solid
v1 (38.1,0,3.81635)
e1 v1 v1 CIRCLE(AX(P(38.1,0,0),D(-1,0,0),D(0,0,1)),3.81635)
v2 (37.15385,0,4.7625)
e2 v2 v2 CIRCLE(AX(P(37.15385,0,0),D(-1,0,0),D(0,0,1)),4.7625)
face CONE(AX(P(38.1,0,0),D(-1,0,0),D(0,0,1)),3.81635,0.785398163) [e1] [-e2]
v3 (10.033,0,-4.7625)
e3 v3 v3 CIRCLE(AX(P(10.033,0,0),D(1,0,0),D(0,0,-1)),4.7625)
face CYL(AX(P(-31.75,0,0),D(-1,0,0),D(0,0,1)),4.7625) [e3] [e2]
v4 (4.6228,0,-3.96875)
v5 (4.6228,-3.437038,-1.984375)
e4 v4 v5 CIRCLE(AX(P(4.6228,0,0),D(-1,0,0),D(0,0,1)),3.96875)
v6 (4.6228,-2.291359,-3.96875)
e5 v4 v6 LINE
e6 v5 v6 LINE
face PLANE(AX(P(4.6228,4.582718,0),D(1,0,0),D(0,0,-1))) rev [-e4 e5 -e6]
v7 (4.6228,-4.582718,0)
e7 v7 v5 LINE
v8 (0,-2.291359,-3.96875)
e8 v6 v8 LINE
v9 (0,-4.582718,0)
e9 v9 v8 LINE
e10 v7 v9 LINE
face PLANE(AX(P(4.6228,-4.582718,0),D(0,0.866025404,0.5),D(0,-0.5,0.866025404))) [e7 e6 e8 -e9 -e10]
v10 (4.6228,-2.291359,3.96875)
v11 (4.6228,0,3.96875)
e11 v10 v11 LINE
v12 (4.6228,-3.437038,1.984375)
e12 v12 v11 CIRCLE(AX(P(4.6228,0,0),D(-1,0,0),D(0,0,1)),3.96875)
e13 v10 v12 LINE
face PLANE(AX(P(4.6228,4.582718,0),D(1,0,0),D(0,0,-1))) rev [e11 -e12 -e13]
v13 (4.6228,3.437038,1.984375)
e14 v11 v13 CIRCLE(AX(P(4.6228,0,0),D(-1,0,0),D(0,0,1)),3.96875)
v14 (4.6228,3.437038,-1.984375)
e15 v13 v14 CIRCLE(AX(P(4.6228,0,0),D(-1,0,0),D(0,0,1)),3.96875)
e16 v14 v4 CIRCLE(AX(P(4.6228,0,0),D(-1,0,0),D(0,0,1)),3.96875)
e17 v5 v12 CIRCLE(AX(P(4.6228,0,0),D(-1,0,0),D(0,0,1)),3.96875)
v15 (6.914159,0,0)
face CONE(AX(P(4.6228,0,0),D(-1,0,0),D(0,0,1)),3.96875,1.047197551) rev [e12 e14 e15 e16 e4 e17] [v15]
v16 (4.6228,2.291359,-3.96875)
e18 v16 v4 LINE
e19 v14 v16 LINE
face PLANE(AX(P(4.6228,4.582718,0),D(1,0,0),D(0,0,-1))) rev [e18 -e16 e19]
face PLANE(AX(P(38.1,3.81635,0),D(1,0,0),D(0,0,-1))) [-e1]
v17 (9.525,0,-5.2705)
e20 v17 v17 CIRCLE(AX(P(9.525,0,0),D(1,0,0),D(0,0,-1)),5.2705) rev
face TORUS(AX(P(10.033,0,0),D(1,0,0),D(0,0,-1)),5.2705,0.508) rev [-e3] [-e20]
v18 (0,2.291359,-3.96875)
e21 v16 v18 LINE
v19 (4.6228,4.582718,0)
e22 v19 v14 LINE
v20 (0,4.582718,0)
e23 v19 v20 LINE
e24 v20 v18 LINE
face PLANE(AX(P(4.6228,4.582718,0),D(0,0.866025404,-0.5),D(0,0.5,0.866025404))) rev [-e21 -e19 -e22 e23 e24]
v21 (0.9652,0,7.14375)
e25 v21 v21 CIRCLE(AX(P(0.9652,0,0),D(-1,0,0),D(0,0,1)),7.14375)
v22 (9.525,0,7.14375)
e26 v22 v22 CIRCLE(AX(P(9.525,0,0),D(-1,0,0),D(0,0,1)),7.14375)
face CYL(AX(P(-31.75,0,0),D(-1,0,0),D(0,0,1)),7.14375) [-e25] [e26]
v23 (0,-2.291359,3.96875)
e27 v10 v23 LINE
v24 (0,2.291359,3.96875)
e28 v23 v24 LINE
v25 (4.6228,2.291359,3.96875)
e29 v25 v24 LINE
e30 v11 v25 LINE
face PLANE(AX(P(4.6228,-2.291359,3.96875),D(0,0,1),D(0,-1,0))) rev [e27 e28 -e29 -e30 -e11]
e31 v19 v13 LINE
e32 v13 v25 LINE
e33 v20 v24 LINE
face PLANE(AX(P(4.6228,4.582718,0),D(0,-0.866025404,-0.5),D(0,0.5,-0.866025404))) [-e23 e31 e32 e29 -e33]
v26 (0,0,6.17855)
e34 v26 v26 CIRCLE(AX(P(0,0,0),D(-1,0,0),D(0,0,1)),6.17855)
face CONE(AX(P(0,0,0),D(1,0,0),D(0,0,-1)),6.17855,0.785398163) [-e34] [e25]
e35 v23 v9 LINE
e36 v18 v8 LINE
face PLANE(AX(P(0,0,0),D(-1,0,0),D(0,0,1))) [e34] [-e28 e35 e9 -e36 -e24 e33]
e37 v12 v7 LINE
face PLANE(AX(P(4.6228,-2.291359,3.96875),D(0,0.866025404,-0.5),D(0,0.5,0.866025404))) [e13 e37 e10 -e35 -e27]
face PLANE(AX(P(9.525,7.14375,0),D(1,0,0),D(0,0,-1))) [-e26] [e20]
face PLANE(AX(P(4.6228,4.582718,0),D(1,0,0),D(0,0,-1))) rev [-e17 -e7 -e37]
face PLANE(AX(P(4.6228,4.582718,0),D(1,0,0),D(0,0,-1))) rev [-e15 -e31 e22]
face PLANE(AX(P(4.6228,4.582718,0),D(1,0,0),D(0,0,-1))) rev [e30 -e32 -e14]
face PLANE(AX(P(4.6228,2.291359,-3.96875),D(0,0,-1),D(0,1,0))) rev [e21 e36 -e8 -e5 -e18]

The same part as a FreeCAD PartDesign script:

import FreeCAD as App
import Part
import Sketcher

V = App.Vector
Q = App.Units.Quantity


def edges_at(feature, points):
    """Names of the edges that pass closest to the given points."""
    edges = feature.Shape.Edges
    near = lambda p: min(range(len(edges)), key=lambda i: edges[i].distToShape(Part.Vertex(*p))[0])
    return sorted({f"Edge{near(p) + 1}" for p in points})

doc = App.newDocument("Part")
params = doc.addObject("Spreadsheet::Sheet", "Params")
for row, (alias, value) in enumerate([
    ("sketch1_width", "1.5 in"),
    ("sketch1_width2", "0.337 in"),
    ("sketch1_height", "0.09375 in"),
    ("revolution_angle", "360 deg"),
    ("fillet_radius", "0.02 in"),
    ("sketch2_width", "0.182 in"),
    ("sketch2_height", "0.15625 in"),
    ("groove_angle", "360 deg"),
    ("pocket1_length", "0.182 in"),
], start=1):
    params.set(f"A{row}", alias)
    params.set(f"B{row}", "=" + value)
    params.setAlias(f"B{row}", alias)

body = doc.addObject("PartDesign::Body", "Body")

# Sketch on XY plane
sketch1 = body.newObject("Sketcher::SketchObject", "Sketch")
sketch1.AttachmentSupport = (doc.getObject("XY_Plane"), [""])
sketch1.MapMode = "FlatFace"
sketch1.addGeometry([
    Part.LineSegment(V(0, 6.2, 0), V(0, 0, 0)),  # 0
    Part.LineSegment(V(0, 0, 0), V(38.1, 0, 0)),  # 1
    Part.LineSegment(V(38.1, 0, 0), V(38.1, 3.8, 0)),  # 2
    Part.LineSegment(V(38.1, 3.8, 0), V(37.2, 4.8, 0)),  # 3
    Part.LineSegment(V(37.2, 4.8, 0), V(9.5, 4.8, 0)),  # 4
    Part.LineSegment(V(9.5, 4.8, 0), V(9.5, 7.1, 0)),  # 5
    Part.LineSegment(V(9.5, 7.1, 0), V(1, 7.1, 0)),  # 6
    Part.LineSegment(V(1, 7.1, 0), V(0, 6.2, 0)),  # 7
], False)
sketch1.addConstraint([
    Sketcher.Constraint("Coincident", 0, 2, 1, 1),
    Sketcher.Constraint("Coincident", 1, 2, 2, 1),
    Sketcher.Constraint("Coincident", 2, 2, 3, 1),
    Sketcher.Constraint("Coincident", 3, 2, 4, 1),
    Sketcher.Constraint("Coincident", 4, 2, 5, 1),
    Sketcher.Constraint("Coincident", 5, 2, 6, 1),
    Sketcher.Constraint("Coincident", 6, 2, 7, 1),
    Sketcher.Constraint("Coincident", 7, 2, 0, 1),
    Sketcher.Constraint("Vertical", 0),
    Sketcher.Constraint("Horizontal", 1),
    Sketcher.Constraint("Vertical", 2),
    Sketcher.Constraint("Horizontal", 4),
    Sketcher.Constraint("Vertical", 5),
    Sketcher.Constraint("Horizontal", 6),
    Sketcher.Constraint("Coincident", 0, 2, -1, 1),
    Sketcher.Constraint("Perpendicular", 3, 7),
    Sketcher.Constraint("DistanceX", 1, 1, 1, 2, Q("1.5 in")),
    Sketcher.Constraint("Angle", 3, Q("135 deg")),
    Sketcher.Constraint("DistanceX", 6, 2, 6, 1, Q("0.337 in")),
    Sketcher.Constraint("DistanceY", 5, 1, 5, 2, Q("0.09375 in")),
    Sketcher.Constraint("DistanceY", -1, 1, 3, 2, Q("0.1875 in")),
    Sketcher.Constraint("DistanceX", -1, 1, 4, 2, Q("0.375 in")),
    Sketcher.Constraint("DistanceY", 2, 2, 5, 2, Q("0.131 in")),
])
sketch1.setExpression("Constraints[16]", "Params.sketch1_width")
sketch1.setExpression("Constraints[18]", "Params.sketch1_width2")
sketch1.setExpression("Constraints[19]", "Params.sketch1_height")
revolution = body.newObject("PartDesign::Revolution", "Revolution")
revolution.Profile = sketch1
revolution.ReferenceAxis = (sketch1, ["H_Axis"])
revolution.setExpression("Angle", "Params.revolution_angle")
doc.recompute()

fillet = body.newObject("PartDesign::Fillet", "Fillet")
fillet.Base = (revolution, edges_at(revolution, [(9.525, 0, -4.763)]))
fillet.setExpression("Radius", "Params.fillet_radius")

# Sketch on XY plane
sketch2 = body.newObject("Sketcher::SketchObject", "Sketch001")
sketch2.AttachmentSupport = (doc.getObject("XY_Plane"), [""])
sketch2.MapMode = "FlatFace"
sketch2.addGeometry([
    Part.LineSegment(V(4.6, 4, 0), V(0, 4, 0)),
    Part.LineSegment(V(0, 4, 0), V(0, 0, 0)),
    Part.LineSegment(V(0, 0, 0), V(6.9, 0, 0)),
    Part.LineSegment(V(6.9, 0, 0), V(4.6, 4, 0)),
], False)
sketch2.addConstraint([
    Sketcher.Constraint("Coincident", 0, 2, 1, 1),
    Sketcher.Constraint("Coincident", 1, 2, 2, 1),
    Sketcher.Constraint("Coincident", 2, 2, 3, 1),
    Sketcher.Constraint("Coincident", 3, 2, 0, 1),
    Sketcher.Constraint("Horizontal", 0),
    Sketcher.Constraint("Vertical", 1),
    Sketcher.Constraint("Horizontal", 2),
    Sketcher.Constraint("Coincident", 1, 2, -1, 1),
    Sketcher.Constraint("Angle", 3, Q("120 deg")),
    Sketcher.Constraint("DistanceX", 0, 2, 0, 1, Q("0.182 in")),
    Sketcher.Constraint("DistanceY", 1, 2, 1, 1, Q("0.15625 in")),
])
sketch2.setExpression("Constraints[9]", "Params.sketch2_width")
sketch2.setExpression("Constraints[10]", "Params.sketch2_height")
groove = body.newObject("PartDesign::Groove", "Groove")
groove.Profile = sketch2
groove.ReferenceAxis = (sketch2, ["H_Axis"])
groove.setExpression("Angle", "Params.groove_angle")

# Sketch on YZ plane
sketch3 = body.newObject("Sketcher::SketchObject", "Sketch002")
sketch3.AttachmentSupport = (doc.getObject("YZ_Plane"), [""])
sketch3.MapMode = "FlatFace"
sketch3.addGeometry([
    Part.LineSegment(V(4.6, 0, 0), V(2.3, -4, 0)),  # 0
    Part.LineSegment(V(2.3, -4, 0), V(-2.3, -4, 0)),  # 1
    Part.LineSegment(V(-2.3, -4, 0), V(-4.6, 0, 0)),  # 2
    Part.LineSegment(V(-4.6, 0, 0), V(-2.3, 4, 0)),  # 3
    Part.LineSegment(V(-2.3, 4, 0), V(2.3, 4, 0)),  # 4
    Part.LineSegment(V(2.3, 4, 0), V(4.6, 0, 0)),  # 5
], False)
sketch3.addConstraint([
    Sketcher.Constraint("Coincident", 0, 2, 1, 1),
    Sketcher.Constraint("Coincident", 1, 2, 2, 1),
    Sketcher.Constraint("Coincident", 2, 2, 3, 1),
    Sketcher.Constraint("Coincident", 3, 2, 4, 1),
    Sketcher.Constraint("Coincident", 4, 2, 5, 1),
    Sketcher.Constraint("Coincident", 5, 2, 0, 1),
    Sketcher.Constraint("Horizontal", 1),
    Sketcher.Constraint("Horizontal", 4),
    Sketcher.Constraint("Symmetric", 0, 2, 3, 2, -1, 1),
    Sketcher.Constraint("Symmetric", 2, 2, 5, 2, -1, 1),
    Sketcher.Constraint("PointOnObject", 2, 2, -1),
    Sketcher.Constraint("Parallel", 2, 5),
    Sketcher.Constraint("Vertical", 1, 2, 3, 2),
    Sketcher.Constraint("Angle", 0, Q("-120 deg")),
    Sketcher.Constraint("DistanceY", 0, 2, -1, 1, Q("0.15625 in")),
    Sketcher.Constraint("DistanceX", 1, 2, 1, 1, 4.582718),
])
pocket1 = body.newObject("PartDesign::Pocket", "Pocket")
pocket1.Profile = sketch3
pocket1.setExpression("Length", "Params.pocket1_length")
pocket1.Reversed = True

doc.recompute()
